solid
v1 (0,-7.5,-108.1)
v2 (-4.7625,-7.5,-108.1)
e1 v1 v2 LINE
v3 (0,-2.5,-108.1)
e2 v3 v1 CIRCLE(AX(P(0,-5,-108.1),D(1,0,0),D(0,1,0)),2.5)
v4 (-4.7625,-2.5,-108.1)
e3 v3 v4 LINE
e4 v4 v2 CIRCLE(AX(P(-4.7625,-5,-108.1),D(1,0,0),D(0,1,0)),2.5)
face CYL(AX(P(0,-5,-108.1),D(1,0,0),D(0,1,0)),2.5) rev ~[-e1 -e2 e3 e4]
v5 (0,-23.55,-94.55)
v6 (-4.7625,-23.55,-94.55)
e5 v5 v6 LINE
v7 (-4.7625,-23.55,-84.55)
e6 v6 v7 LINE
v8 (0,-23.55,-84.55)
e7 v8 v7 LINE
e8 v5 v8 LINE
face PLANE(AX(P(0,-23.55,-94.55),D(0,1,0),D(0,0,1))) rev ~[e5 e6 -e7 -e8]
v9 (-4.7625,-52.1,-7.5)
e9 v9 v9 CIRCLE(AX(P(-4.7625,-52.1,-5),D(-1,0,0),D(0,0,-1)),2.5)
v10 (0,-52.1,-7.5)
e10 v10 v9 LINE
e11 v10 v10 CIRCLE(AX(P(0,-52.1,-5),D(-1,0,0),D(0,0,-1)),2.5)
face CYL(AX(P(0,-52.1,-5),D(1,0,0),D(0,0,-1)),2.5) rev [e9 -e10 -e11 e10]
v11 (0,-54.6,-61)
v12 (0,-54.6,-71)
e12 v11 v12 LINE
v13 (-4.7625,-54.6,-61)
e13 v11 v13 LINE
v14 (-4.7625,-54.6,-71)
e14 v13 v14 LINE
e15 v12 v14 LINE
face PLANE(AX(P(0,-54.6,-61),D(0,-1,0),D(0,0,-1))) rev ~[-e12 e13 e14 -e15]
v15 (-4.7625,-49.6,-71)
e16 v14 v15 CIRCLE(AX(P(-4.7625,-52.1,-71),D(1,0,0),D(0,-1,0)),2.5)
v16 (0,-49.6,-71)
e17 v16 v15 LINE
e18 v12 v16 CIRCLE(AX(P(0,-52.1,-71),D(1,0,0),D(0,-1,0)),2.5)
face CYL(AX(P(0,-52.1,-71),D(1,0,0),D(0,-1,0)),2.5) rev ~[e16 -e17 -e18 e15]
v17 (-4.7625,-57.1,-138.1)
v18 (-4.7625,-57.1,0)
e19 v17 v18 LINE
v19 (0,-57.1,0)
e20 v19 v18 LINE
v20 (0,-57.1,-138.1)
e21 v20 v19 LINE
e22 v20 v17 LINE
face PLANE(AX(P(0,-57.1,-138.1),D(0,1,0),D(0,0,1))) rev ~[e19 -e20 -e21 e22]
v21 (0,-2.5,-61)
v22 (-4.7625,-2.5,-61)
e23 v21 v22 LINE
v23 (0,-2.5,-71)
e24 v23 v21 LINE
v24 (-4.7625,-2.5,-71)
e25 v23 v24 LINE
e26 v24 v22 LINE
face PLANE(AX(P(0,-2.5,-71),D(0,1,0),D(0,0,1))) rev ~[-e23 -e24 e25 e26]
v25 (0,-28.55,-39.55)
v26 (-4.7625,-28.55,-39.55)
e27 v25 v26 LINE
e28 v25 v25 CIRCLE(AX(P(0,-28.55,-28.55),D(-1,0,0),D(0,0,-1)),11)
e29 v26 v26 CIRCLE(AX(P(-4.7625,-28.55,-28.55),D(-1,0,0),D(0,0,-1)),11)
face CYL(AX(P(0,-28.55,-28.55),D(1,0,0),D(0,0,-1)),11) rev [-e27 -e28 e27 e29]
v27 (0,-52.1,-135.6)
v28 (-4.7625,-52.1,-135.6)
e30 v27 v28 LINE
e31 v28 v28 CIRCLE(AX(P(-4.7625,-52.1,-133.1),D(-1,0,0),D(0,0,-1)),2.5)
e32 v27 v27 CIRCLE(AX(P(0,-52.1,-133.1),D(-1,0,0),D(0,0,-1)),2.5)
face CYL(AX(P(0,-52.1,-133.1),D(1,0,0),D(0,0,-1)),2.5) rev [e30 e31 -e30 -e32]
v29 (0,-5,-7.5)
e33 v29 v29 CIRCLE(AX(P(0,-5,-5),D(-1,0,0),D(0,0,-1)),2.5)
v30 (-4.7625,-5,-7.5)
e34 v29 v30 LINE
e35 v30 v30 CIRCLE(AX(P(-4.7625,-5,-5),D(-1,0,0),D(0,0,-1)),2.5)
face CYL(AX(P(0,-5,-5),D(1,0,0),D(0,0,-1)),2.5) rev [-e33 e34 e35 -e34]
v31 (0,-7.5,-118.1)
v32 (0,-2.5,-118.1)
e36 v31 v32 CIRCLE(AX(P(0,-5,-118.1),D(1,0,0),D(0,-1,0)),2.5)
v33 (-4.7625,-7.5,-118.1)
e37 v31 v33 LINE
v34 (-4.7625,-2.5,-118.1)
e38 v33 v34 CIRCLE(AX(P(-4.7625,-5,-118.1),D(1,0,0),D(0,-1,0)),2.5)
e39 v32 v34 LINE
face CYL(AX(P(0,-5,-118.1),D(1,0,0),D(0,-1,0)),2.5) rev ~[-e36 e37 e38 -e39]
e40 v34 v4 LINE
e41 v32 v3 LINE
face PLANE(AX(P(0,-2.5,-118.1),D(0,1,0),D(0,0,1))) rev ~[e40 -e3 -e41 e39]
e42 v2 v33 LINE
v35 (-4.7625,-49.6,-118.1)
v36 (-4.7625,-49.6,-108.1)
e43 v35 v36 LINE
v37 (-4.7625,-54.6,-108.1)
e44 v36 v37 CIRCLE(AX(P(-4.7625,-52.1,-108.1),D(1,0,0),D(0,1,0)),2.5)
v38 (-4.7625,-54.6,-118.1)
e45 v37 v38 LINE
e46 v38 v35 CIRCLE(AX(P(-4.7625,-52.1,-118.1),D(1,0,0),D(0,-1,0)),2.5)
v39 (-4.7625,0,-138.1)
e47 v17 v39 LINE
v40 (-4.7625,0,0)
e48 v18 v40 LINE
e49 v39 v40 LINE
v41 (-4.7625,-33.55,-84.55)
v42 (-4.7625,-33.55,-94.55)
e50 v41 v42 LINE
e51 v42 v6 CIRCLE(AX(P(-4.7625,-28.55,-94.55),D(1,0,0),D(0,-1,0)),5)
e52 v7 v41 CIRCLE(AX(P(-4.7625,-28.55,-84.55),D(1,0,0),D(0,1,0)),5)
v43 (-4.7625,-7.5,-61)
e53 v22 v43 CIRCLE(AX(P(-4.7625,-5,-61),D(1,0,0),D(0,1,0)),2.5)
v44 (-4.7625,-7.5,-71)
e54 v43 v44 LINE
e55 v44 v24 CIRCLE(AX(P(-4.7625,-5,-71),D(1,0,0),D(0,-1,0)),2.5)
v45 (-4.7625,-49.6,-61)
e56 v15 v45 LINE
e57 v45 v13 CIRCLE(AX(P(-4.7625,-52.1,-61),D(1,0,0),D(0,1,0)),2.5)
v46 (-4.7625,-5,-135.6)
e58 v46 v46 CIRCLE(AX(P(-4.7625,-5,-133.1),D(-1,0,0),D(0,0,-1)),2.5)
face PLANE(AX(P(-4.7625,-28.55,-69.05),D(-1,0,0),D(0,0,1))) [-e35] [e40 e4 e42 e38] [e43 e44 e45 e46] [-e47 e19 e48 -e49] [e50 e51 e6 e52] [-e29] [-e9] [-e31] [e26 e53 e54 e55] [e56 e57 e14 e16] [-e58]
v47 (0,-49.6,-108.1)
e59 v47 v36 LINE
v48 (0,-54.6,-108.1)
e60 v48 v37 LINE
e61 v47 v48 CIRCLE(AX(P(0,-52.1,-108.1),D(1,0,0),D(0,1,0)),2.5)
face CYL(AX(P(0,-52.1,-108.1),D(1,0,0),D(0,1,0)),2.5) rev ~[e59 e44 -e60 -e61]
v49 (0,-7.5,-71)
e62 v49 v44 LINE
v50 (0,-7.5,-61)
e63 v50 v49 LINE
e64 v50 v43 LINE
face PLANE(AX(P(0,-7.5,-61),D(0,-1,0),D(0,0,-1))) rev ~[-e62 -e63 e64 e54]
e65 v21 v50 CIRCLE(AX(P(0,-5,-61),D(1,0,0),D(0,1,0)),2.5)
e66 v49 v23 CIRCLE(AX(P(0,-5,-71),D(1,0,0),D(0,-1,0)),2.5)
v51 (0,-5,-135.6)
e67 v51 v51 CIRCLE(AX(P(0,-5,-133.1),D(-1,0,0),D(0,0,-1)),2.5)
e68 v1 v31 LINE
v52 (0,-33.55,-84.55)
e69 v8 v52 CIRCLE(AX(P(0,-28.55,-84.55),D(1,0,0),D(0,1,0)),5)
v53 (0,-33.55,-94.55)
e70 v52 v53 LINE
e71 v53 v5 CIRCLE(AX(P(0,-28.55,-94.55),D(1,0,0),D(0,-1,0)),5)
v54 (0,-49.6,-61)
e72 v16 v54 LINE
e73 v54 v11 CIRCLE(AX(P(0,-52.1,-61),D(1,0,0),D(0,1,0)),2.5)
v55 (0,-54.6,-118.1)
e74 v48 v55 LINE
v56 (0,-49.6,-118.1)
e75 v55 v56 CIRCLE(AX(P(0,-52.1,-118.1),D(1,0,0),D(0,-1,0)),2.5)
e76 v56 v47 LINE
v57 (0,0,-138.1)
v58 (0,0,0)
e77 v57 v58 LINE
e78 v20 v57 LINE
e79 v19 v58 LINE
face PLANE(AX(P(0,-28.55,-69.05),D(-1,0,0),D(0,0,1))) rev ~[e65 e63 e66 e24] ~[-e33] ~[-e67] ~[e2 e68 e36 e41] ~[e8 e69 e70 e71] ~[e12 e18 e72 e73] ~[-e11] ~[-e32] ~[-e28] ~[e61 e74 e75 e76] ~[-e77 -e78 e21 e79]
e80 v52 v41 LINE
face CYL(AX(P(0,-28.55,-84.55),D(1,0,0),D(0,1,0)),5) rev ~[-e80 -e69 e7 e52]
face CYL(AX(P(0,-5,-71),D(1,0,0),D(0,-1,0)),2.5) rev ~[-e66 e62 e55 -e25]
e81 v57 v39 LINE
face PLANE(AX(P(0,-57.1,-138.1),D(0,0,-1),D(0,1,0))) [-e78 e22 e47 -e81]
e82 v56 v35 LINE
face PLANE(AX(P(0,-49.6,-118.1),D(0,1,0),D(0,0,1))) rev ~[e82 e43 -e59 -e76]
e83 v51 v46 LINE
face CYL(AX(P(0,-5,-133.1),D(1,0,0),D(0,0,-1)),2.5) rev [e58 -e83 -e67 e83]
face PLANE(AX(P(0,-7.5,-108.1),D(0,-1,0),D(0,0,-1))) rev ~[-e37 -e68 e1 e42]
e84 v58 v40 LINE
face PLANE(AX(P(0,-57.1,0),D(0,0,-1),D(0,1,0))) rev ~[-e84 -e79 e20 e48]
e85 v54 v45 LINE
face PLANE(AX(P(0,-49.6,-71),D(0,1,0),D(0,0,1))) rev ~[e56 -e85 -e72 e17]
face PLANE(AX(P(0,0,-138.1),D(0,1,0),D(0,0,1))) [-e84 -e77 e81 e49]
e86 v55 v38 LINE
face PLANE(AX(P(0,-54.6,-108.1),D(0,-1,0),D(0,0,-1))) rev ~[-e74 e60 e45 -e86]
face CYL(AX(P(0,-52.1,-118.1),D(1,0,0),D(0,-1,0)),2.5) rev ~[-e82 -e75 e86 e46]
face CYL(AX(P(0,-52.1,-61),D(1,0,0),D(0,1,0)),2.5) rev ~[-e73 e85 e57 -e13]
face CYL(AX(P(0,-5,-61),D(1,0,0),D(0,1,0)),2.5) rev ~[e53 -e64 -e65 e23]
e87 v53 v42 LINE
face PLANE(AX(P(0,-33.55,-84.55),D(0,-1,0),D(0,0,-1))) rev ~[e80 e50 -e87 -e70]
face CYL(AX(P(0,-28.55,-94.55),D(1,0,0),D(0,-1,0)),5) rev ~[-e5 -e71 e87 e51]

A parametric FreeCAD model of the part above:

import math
import FreeCAD as App
import Part
import Sketcher

V = App.Vector
Q = App.Units.Quantity


def add_polygon(sketch, points):
    """Adds a closed chain of lines whose ends are joined by coincident constraints."""
    first, n = sketch.GeometryCount, len(points)
    for a, b in zip(points, points[1:] + points[:1]):
        sketch.addGeometry(Part.LineSegment(App.Vector(*a, 0), App.Vector(*b, 0)), False)
    for i in range(n):
        sketch.addConstraint(Sketcher.Constraint("Coincident", first + i, 2, first + (i + 1) % n, 1))

doc = App.newDocument("Part")
params = doc.addObject("Spreadsheet::Sheet", "Params")
for row, (alias, value) in enumerate([
    ("sketch1_diameter", "5 mm"),
    ("sketch1_diameter2", "22 mm"),
    ("sketch1_radius", "5 mm"),
    ("sketch1_height", "10 mm"),
    ("sketch1_width", "57.1 mm"),
    ("pad1_length", "4.7625 mm"),
], start=1):
    params.set(f"A{row}", alias)
    params.set(f"B{row}", "=" + value)
    params.setAlias(f"B{row}", alias)

body = doc.addObject("PartDesign::Body", "Body")

sketch1 = doc.addObject("Sketcher::SketchObject", "Sketch")
body.addObject(sketch1)
sketch1.AttachmentSupport = (doc.YZ_Plane, [""])
sketch1.MapMode = "FlatFace"
add_polygon(sketch1, [(0, -138.1), (-57.1, -138.1), (-57.1, 0), (0, 0)])
sketch1.addGeometry(Part.Circle(V(-52.1, -133.1, 0), V(0, 0, 1), 2.5), False)
sketch1.addGeometry(Part.ArcOfCircle(Part.Circle(V(-52.1, -108.1, 0), V(0, 0, 1), 2.5), math.radians(0), math.radians(180)), False)
sketch1.addGeometry(Part.LineSegment(V(-54.6, -108.1, 0), V(-54.6, -118.1, 0)), False)
sketch1.addGeometry(Part.ArcOfCircle(Part.Circle(V(-52.1, -118.1, 0), V(0, 0, 1), 2.5), math.radians(180), math.radians(360)), False)
sketch1.addGeometry(Part.LineSegment(V(-49.6, -118.1, 0), V(-49.6, -108.1, 0)), False)
sketch1.addGeometry(Part.ArcOfCircle(Part.Circle(V(-52.1, -61, 0), V(0, 0, 1), 2.5), math.radians(0), math.radians(180)), False)
sketch1.addGeometry(Part.LineSegment(V(-54.6, -61, 0), V(-54.6, -71, 0)), False)
sketch1.addGeometry(Part.ArcOfCircle(Part.Circle(V(-52.1, -71, 0), V(0, 0, 1), 2.5), math.radians(180), math.radians(360)), False)
sketch1.addGeometry(Part.LineSegment(V(-49.6, -71, 0), V(-49.6, -61, 0)), False)
sketch1.addGeometry(Part.Circle(V(-52.1, -5, 0), V(0, 0, 1), 2.5), False)
sketch1.addGeometry(Part.ArcOfCircle(Part.Circle(V(-28.6, -84.5, 0), V(0, 0, 1), 5), math.radians(0), math.radians(180)), False)
sketch1.addGeometry(Part.LineSegment(V(-33.5, -84.5, 0), V(-33.5, -94.5, 0)), False)
sketch1.addGeometry(Part.ArcOfCircle(Part.Circle(V(-28.6, -94.5, 0), V(0, 0, 1), 5), math.radians(180), math.radians(360)), False)
sketch1.addGeometry(Part.LineSegment(V(-23.6, -94.5, 0), V(-23.6, -84.5, 0)), False)
sketch1.addGeometry(Part.Circle(V(-5, -133.1, 0), V(0, 0, 1), 2.5), False)
sketch1.addGeometry(Part.ArcOfCircle(Part.Circle(V(-5, -108.1, 0), V(0, 0, 1), 2.5), math.radians(0), math.radians(180)), False)
sketch1.addGeometry(Part.LineSegment(V(-7.5, -108.1, 0), V(-7.5, -118.1, 0)), False)
sketch1.addGeometry(Part.ArcOfCircle(Part.Circle(V(-5, -118.1, 0), V(0, 0, 1), 2.5), math.radians(180), math.radians(360)), False)
sketch1.addGeometry(Part.LineSegment(V(-2.5, -118.1, 0), V(-2.5, -108.1, 0)), False)
sketch1.addGeometry(Part.Circle(V(-28.6, -28.6, 0), V(0, 0, 1), 11), False)
sketch1.addGeometry(Part.ArcOfCircle(Part.Circle(V(-5, -61, 0), V(0, 0, 1), 2.5), math.radians(0), math.radians(180)), False)
sketch1.addGeometry(Part.LineSegment(V(-7.5, -61, 0), V(-7.5, -71, 0)), False)
sketch1.addGeometry(Part.ArcOfCircle(Part.Circle(V(-5, -71, 0), V(0, 0, 1), 2.5), math.radians(180), math.radians(360)), False)
sketch1.addGeometry(Part.LineSegment(V(-2.5, -71, 0), V(-2.5, -61, 0)), False)
sketch1.addGeometry(Part.Circle(V(-5, -5, 0), V(0, 0, 1), 2.5), False)
sketch1.addConstraint([
    Sketcher.Constraint("Tangent", 5, 2, 6, 1),
    Sketcher.Constraint("Tangent", 6, 2, 7, 1),
    Sketcher.Constraint("Tangent", 7, 2, 8, 1),
    Sketcher.Constraint("Tangent", 8, 2, 5, 1),
    Sketcher.Constraint("Tangent", 9, 2, 10, 1),
    Sketcher.Constraint("Tangent", 10, 2, 11, 1),
    Sketcher.Constraint("Tangent", 11, 2, 12, 1),
    Sketcher.Constraint("Tangent", 12, 2, 9, 1),
    Sketcher.Constraint("Tangent", 14, 2, 15, 1),
    Sketcher.Constraint("Tangent", 15, 2, 16, 1),
    Sketcher.Constraint("Tangent", 16, 2, 17, 1),
    Sketcher.Constraint("Tangent", 17, 2, 14, 1),
    Sketcher.Constraint("Tangent", 19, 2, 20, 1),
    Sketcher.Constraint("Tangent", 20, 2, 21, 1),
    Sketcher.Constraint("Tangent", 21, 2, 22, 1),
    Sketcher.Constraint("Tangent", 22, 2, 19, 1),
    Sketcher.Constraint("Tangent", 24, 2, 25, 1),
    Sketcher.Constraint("Tangent", 25, 2, 26, 1),
    Sketcher.Constraint("Tangent", 26, 2, 27, 1),
    Sketcher.Constraint("Tangent", 27, 2, 24, 1),
    Sketcher.Constraint("Horizontal", 0),
    Sketcher.Constraint("Vertical", 1),
    Sketcher.Constraint("Horizontal", 2),
    Sketcher.Constraint("Vertical", 3),
    Sketcher.Constraint("Vertical", 6),
    Sketcher.Constraint("Vertical", 8),
    Sketcher.Constraint("Vertical", 10),
    Sketcher.Constraint("Vertical", 12),
    Sketcher.Constraint("Vertical", 15),
    Sketcher.Constraint("Vertical", 17),
    Sketcher.Constraint("Vertical", 20),
    Sketcher.Constraint("Vertical", 22),
    Sketcher.Constraint("Vertical", 25),
    Sketcher.Constraint("Vertical", 27),
    Sketcher.Constraint("Coincident", 2, 2, -1, 1),
    Sketcher.Constraint("Equal", 4, 5),
    Sketcher.Constraint("Equal", 7, 9),
    Sketcher.Constraint("Equal", 11, 13),
    Sketcher.Constraint("Equal", 13, 18),
    Sketcher.Constraint("Equal", 18, 19),
    Sketcher.Constraint("Equal", 21, 24),
    Sketcher.Constraint("Equal", 26, 28),
    Sketcher.Constraint("Horizontal", 4, 3, 18, 3),
    Sketcher.Constraint("Horizontal", 5, 3, 19, 3),
    Sketcher.Constraint("Horizontal", 7, 3, 21, 3),
    Sketcher.Constraint("Horizontal", 9, 3, 24, 3),
    Sketcher.Constraint("Horizontal", 11, 3, 26, 3),
    Sketcher.Constraint("Horizontal", 13, 3, 28, 3),
    Sketcher.Constraint("Vertical", 4, 3, 5, 3),
    Sketcher.Constraint("Vertical", 7, 3, 9, 3),
    Sketcher.Constraint("Vertical", 11, 3, 13, 3),
    Sketcher.Constraint("Vertical", 18, 3, 19, 3),
    Sketcher.Constraint("Vertical", 16, 3, 23, 3),
    Sketcher.Constraint("Vertical", 21, 3, 24, 3),
    Sketcher.Constraint("Vertical", 26, 3, 28, 3),
    Sketcher.Constraint("Equal", 8, 10),
    Sketcher.Constraint("Equal", 12, 15),
    Sketcher.Constraint("Diameter", 4, Q("5 mm")),
    Sketcher.Constraint("Diameter", 23, Q("22 mm")),
    Sketcher.Constraint("Radius", 14, Q("5 mm")),
    Sketcher.Constraint("DistanceY", 6, 2, 6, 1, Q("10 mm")),
    Sketcher.Constraint("DistanceX", 0, 2, 0, 1, Q("57.1 mm")),
    Sketcher.Constraint("DistanceY", 1, 1, 1, 2, Q("138.1 mm")),
    Sketcher.Constraint("DistanceY", 9, 3, -1, 1, Q("61 mm")),
    Sketcher.Constraint("DistanceY", 13, 3, -1, 1, Q("5 mm")),
    Sketcher.Constraint("DistanceX", 18, 3, -1, 1, Q("5 mm")),
    Sketcher.Constraint("DistanceY", 4, 3, 5, 3, Q("25 mm")),
    Sketcher.Constraint("DistanceY", 14, 3, 23, 3, Q("56 mm")),
    Sketcher.Constraint("DistanceX", 0, 2, 4, 3, Q("5 mm")),
    Sketcher.Constraint("DistanceY", 0, 2, 4, 3, Q("5 mm")),
    Sketcher.Constraint("DistanceX", 14, 3, -1, 1, Q("28.55 mm")),
    Sketcher.Constraint("DistanceY", 14, 3, -1, 1, Q("84.55 mm")),
])
sketch1.setExpression("Constraints[61]", "Params.sketch1_diameter")
sketch1.setExpression("Constraints[62]", "Params.sketch1_diameter2")
sketch1.setExpression("Constraints[63]", "Params.sketch1_radius")
sketch1.setExpression("Constraints[64]", "Params.sketch1_height")
sketch1.setExpression("Constraints[65]", "Params.sketch1_width")
pad1 = doc.addObject("PartDesign::Pad", "Pad")
body.addObject(pad1)
pad1.Profile = sketch1
pad1.setExpression("Length", "Params.pad1_length")
pad1.Reversed = True

doc.recompute()
